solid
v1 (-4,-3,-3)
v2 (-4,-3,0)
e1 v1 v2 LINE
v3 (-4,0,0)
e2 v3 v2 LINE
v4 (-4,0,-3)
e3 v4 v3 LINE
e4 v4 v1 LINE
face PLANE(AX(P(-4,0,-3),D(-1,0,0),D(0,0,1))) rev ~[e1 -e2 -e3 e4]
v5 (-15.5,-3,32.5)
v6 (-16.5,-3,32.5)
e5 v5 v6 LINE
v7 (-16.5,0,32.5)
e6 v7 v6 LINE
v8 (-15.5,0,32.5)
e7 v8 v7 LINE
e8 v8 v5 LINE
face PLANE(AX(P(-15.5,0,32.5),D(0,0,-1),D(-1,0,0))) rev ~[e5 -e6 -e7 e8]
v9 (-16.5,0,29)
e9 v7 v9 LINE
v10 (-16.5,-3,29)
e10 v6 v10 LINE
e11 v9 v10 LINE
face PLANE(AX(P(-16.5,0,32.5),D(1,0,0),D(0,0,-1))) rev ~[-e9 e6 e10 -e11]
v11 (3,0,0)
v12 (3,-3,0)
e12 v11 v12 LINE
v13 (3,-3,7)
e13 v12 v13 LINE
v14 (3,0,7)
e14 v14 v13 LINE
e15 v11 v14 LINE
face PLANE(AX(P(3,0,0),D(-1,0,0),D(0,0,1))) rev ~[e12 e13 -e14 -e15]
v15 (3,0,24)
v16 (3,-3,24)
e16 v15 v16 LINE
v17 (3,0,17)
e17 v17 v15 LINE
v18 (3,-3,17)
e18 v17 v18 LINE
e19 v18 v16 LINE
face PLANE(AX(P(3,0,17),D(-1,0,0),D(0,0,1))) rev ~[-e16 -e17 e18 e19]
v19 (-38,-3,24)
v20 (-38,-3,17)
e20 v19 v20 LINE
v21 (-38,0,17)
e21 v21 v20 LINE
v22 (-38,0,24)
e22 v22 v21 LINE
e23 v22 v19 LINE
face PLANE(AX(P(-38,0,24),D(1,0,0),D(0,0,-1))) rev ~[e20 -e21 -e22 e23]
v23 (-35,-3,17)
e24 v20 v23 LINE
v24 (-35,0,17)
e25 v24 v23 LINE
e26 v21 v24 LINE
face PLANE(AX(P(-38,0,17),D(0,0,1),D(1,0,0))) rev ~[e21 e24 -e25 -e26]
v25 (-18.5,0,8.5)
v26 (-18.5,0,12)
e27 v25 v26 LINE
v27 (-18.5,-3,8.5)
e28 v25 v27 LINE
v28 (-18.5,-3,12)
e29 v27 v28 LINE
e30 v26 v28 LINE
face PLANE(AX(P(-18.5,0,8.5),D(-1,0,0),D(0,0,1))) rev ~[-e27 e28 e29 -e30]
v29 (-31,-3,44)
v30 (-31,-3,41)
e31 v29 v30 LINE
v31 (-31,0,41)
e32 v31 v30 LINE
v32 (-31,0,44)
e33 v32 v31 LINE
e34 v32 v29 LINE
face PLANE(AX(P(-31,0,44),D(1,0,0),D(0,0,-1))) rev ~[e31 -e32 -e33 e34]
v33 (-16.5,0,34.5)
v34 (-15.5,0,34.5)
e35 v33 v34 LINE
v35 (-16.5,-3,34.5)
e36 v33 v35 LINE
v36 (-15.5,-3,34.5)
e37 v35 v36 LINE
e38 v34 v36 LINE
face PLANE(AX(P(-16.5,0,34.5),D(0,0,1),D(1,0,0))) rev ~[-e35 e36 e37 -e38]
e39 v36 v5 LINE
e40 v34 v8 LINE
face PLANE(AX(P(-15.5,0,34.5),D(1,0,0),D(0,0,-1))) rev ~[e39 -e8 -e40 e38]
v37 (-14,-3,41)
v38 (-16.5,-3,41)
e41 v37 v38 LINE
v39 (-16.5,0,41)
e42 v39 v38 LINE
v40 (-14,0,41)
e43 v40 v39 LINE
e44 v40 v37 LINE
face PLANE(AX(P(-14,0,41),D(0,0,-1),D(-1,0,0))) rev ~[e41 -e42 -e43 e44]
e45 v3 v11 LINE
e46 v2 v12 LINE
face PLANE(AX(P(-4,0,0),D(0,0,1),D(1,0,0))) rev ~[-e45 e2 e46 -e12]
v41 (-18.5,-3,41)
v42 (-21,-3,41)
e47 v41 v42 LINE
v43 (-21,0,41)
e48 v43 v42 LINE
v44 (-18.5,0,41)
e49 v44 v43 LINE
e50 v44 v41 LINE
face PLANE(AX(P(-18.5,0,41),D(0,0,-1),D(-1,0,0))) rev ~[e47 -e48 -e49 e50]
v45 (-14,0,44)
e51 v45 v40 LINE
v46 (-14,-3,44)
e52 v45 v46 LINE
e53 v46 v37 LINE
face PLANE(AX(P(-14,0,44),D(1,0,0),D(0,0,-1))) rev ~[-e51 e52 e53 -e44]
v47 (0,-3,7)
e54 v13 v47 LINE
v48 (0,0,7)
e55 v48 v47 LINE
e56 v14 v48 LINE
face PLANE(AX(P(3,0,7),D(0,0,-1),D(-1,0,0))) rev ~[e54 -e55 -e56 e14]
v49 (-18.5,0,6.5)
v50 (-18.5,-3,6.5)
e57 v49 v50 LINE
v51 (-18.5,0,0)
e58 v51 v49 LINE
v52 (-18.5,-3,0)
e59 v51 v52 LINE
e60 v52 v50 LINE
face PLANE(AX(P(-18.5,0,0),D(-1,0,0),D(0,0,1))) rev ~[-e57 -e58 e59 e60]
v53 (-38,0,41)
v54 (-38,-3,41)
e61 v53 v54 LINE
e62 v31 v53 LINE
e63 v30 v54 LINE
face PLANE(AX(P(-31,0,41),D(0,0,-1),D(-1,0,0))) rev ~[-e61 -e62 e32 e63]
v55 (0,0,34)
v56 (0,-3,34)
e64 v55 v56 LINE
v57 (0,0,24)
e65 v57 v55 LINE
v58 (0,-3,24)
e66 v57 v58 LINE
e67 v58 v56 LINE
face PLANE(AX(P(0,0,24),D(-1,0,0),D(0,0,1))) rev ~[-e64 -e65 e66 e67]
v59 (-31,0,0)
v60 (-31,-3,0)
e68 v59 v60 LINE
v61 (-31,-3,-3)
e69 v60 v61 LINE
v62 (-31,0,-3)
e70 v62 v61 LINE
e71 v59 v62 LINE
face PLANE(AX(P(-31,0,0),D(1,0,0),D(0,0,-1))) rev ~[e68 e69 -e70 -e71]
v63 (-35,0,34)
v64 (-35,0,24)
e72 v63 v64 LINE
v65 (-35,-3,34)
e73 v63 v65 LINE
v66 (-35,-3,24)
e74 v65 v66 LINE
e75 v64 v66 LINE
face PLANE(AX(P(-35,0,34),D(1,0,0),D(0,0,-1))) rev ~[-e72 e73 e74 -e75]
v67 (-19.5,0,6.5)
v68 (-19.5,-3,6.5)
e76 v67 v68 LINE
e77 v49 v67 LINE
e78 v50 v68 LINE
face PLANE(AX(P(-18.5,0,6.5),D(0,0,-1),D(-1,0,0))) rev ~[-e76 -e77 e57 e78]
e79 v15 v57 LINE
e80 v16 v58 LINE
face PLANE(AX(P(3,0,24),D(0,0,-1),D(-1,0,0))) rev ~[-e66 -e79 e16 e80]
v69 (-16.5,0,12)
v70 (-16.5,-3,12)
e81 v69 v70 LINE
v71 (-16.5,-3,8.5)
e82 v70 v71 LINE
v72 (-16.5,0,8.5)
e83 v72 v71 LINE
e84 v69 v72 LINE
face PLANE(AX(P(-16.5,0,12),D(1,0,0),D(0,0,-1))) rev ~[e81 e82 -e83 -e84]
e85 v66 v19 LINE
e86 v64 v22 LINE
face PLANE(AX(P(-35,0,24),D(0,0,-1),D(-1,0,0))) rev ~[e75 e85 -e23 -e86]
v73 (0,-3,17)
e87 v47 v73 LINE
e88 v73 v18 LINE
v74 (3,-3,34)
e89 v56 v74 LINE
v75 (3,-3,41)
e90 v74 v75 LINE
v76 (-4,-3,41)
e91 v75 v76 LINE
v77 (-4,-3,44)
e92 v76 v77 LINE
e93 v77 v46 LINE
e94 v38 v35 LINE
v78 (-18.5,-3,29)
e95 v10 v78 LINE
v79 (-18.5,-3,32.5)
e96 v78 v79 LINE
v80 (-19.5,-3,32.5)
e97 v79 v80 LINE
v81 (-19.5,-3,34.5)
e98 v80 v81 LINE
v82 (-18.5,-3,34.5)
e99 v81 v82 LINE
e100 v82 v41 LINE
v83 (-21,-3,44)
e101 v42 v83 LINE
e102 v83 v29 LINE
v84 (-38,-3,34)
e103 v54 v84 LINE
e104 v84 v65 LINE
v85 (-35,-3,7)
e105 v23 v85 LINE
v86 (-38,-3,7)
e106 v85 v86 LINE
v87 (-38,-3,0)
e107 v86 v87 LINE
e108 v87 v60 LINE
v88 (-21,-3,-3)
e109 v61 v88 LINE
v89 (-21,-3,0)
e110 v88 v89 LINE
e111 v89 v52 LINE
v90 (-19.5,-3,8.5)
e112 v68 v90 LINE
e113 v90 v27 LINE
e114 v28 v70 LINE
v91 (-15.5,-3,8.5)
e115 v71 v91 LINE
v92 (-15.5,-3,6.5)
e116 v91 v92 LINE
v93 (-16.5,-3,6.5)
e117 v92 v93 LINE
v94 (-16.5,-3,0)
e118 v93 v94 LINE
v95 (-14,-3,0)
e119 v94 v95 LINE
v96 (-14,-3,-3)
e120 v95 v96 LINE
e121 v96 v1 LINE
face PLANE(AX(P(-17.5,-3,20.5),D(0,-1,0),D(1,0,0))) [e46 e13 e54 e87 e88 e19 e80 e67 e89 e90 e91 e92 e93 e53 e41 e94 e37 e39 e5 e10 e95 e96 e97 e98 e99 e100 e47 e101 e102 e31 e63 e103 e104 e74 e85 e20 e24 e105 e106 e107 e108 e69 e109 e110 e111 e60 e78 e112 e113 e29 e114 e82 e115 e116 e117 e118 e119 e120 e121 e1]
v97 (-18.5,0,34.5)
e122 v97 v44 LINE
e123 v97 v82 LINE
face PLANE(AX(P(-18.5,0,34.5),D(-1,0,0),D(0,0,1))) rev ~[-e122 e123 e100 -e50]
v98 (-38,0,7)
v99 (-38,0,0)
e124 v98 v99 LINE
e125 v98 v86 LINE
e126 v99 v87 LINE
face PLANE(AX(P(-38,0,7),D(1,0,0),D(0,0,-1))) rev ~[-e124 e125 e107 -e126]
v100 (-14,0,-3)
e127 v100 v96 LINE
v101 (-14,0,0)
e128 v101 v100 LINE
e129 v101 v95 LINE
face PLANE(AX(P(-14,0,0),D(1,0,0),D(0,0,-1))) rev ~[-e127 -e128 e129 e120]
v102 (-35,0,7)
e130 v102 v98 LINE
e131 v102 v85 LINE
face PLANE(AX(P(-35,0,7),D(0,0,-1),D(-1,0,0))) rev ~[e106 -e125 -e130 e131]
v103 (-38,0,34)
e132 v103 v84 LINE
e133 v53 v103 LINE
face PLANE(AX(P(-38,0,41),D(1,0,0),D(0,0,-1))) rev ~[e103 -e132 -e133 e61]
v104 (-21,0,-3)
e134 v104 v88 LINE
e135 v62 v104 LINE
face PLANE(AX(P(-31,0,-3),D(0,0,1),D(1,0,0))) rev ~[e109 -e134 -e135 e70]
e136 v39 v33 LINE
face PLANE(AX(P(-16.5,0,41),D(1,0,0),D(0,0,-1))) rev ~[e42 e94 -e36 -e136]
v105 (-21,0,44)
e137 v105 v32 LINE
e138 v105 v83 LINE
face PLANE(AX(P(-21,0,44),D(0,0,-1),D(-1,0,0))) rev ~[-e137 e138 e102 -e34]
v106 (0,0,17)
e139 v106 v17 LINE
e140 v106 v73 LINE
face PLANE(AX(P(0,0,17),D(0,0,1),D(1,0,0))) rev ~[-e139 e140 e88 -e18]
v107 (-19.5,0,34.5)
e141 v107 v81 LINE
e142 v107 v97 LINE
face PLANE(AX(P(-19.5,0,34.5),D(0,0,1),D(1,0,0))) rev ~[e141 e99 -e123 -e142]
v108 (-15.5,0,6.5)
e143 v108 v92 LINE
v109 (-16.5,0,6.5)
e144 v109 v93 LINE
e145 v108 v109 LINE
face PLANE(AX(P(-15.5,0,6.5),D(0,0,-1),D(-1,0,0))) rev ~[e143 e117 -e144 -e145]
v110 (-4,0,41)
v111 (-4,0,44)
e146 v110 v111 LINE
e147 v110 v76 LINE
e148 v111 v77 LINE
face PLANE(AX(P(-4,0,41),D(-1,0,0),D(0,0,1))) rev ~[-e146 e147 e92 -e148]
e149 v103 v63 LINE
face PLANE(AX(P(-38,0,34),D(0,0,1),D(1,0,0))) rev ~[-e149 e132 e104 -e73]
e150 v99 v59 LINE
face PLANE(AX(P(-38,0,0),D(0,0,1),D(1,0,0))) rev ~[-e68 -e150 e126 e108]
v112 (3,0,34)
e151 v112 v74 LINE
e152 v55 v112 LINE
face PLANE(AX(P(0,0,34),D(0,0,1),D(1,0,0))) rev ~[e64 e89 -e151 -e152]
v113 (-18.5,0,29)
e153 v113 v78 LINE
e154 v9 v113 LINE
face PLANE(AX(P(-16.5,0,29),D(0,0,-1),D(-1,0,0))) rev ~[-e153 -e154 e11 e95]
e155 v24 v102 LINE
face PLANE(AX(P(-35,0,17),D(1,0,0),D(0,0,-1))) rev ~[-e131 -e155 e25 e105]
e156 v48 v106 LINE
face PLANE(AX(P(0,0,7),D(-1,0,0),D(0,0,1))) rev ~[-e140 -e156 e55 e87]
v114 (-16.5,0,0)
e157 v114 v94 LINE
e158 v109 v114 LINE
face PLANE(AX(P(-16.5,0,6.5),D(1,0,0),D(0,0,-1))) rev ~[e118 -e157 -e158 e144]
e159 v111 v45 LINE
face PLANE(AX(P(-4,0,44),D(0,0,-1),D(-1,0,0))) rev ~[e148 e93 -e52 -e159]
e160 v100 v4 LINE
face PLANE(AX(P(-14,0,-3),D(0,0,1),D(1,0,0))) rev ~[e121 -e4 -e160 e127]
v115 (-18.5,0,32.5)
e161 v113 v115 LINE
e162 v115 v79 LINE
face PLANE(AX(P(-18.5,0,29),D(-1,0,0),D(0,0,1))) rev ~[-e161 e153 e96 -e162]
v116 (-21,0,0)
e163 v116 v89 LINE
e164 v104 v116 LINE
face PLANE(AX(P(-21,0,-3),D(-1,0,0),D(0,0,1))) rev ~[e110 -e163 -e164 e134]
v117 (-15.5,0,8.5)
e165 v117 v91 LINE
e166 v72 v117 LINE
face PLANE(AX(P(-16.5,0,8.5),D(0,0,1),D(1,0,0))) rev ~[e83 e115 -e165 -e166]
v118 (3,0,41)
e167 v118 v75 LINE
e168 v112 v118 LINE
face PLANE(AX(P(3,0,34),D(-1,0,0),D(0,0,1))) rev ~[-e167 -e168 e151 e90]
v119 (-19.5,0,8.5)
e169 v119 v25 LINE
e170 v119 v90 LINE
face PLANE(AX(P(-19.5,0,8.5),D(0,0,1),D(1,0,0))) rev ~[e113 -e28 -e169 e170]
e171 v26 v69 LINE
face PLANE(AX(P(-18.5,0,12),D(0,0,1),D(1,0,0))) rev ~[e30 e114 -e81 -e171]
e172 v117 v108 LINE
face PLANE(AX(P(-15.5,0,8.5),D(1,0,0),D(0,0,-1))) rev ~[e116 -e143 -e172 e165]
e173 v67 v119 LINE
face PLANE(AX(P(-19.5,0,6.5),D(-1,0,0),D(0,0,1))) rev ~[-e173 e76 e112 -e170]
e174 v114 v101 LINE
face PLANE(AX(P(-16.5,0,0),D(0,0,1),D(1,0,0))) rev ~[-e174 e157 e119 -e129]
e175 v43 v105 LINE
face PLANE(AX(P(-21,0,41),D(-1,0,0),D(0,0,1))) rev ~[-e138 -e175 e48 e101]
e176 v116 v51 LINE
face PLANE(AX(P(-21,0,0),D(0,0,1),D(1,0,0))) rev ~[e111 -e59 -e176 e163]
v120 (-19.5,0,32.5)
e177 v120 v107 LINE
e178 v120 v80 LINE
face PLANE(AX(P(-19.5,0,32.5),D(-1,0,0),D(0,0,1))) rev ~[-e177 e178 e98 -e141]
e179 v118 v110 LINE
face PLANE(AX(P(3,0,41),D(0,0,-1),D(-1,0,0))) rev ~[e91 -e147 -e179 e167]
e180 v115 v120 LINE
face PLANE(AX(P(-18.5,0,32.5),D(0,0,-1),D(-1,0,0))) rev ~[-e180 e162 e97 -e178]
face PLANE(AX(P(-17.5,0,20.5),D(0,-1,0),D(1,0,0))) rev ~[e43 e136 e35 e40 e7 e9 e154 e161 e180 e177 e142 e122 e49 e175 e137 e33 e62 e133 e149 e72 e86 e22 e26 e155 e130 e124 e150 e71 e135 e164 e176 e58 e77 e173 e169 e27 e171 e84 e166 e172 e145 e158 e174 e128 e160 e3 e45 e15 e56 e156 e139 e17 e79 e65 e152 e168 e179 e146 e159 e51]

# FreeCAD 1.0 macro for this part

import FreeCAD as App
import Part
import Sketcher
from FreeCAD import Vector


def add_polygon(sketch, points):
    """Adds a closed chain of lines whose ends are joined by coincident constraints."""
    first, n = sketch.GeometryCount, len(points)
    for a, b in zip(points, points[1:] + points[:1]):
        sketch.addGeometry(Part.LineSegment(App.Vector(*a, 0), App.Vector(*b, 0)), False)
    for i in range(n):
        sketch.addConstraint(Sketcher.Constraint("Coincident", first + i, 2, first + (i + 1) % n, 1))

doc = App.newDocument("Part")
body = doc.addObject("PartDesign::Body", "Body")

# Sketch on XZ plane
sketch1 = body.newObject("Sketcher::SketchObject", "Sketch")
sketch1.AttachmentSupport = (doc.getObject("XZ_Plane"), [""])
sketch1.MapMode = "FlatFace"
add_polygon(sketch1, [(3, 0), (3, 7), (0, 7), (0, 17), (3, 17), (3, 24), (0, 24), (0, 34), (3, 34), (3, 41), (-4, 41), (-4, 44), (-14, 44), (-14, 41), (-16.5, 41), (-16.5, 34.5), (-15.5, 34.5), (-15.5, 32.5), (-16.5, 32.5), (-16.5, 29), (-18.5, 29), (-18.5, 32.5), (-19.5, 32.5), (-19.5, 34.5), (-18.5, 34.5), (-18.5, 41), (-21, 41), (-21, 44), (-31, 44), (-31, 41), (-38, 41), (-38, 34), (-35, 34), (-35, 24), (-38, 24), (-38, 17), (-35, 17), (-35, 7), (-38, 7), (-38, 0), (-31, 0), (-31, -3), (-21, -3), (-21, 0), (-18.5, 0), (-18.5, 6.5), (-19.5, 6.5), (-19.5, 8.5), (-18.5, 8.5), (-18.5, 12), (-16.5, 12), (-16.5, 8.5), (-15.5, 8.5), (-15.5, 6.5), (-16.5, 6.5), (-16.5, 0), (-14, 0), (-14, -3), (-4, -3), (-4, 0)])  # lines 0-59
sketch1.addConstraint([
    Sketcher.Constraint("Vertical", 0),
    Sketcher.Constraint("Horizontal", 1),
    Sketcher.Constraint("Vertical", 2),
    Sketcher.Constraint("Horizontal", 3),
    Sketcher.Constraint("Vertical", 4),
    Sketcher.Constraint("Horizontal", 5),
    Sketcher.Constraint("Vertical", 6),
    Sketcher.Constraint("Horizontal", 7),
    Sketcher.Constraint("Vertical", 8),
    Sketcher.Constraint("Horizontal", 9),
    Sketcher.Constraint("Vertical", 10),
    Sketcher.Constraint("Horizontal", 11),
    Sketcher.Constraint("Vertical", 12),
    Sketcher.Constraint("Horizontal", 13),
    Sketcher.Constraint("Vertical", 14),
    Sketcher.Constraint("Horizontal", 15),
    Sketcher.Constraint("Vertical", 16),
    Sketcher.Constraint("Horizontal", 17),
    Sketcher.Constraint("Vertical", 18),
    Sketcher.Constraint("Horizontal", 19),
    Sketcher.Constraint("Vertical", 20),
    Sketcher.Constraint("Horizontal", 21),
    Sketcher.Constraint("Vertical", 22),
    Sketcher.Constraint("Horizontal", 23),
    Sketcher.Constraint("Vertical", 24),
    Sketcher.Constraint("Horizontal", 25),
    Sketcher.Constraint("Vertical", 26),
    Sketcher.Constraint("Horizontal", 27),
    Sketcher.Constraint("Vertical", 28),
    Sketcher.Constraint("Horizontal", 29),
    Sketcher.Constraint("Vertical", 30),
    Sketcher.Constraint("Horizontal", 31),
    Sketcher.Constraint("Vertical", 32),
    Sketcher.Constraint("Horizontal", 33),
    Sketcher.Constraint("Vertical", 34),
    Sketcher.Constraint("Horizontal", 35),
    Sketcher.Constraint("Vertical", 36),
    Sketcher.Constraint("Horizontal", 37),
    Sketcher.Constraint("Vertical", 38),
    Sketcher.Constraint("Horizontal", 39),
    Sketcher.Constraint("Vertical", 40),
    Sketcher.Constraint("Horizontal", 41),
    Sketcher.Constraint("Vertical", 42),
    Sketcher.Constraint("Horizontal", 43),
    Sketcher.Constraint("Vertical", 44),
    Sketcher.Constraint("Horizontal", 45),
    Sketcher.Constraint("Vertical", 46),
    Sketcher.Constraint("Horizontal", 47),
    Sketcher.Constraint("Vertical", 48),
    Sketcher.Constraint("Horizontal", 49),
    Sketcher.Constraint("Vertical", 50),
    Sketcher.Constraint("Horizontal", 51),
    Sketcher.Constraint("Vertical", 52),
    Sketcher.Constraint("Horizontal", 53),
    Sketcher.Constraint("Vertical", 54),
    Sketcher.Constraint("Horizontal", 55),
    Sketcher.Constraint("Vertical", 56),
    Sketcher.Constraint("Horizontal", 57),
    Sketcher.Constraint("Vertical", 58),
    Sketcher.Constraint("Horizontal", 59),
    Sketcher.Constraint("PointOnObject", 1, 2, -2),
    Sketcher.Constraint("PointOnObject", 5, 2, -2),
    Sketcher.Constraint("PointOnObject", 38, 2, -1),
    Sketcher.Constraint("PointOnObject", 42, 2, -1),
    Sketcher.Constraint("PointOnObject", 54, 2, -1),
    Sketcher.Constraint("PointOnObject", 58, 2, -1),
    Sketcher.Constraint("Horizontal", 9, 2, 12, 2),
    Sketcher.Constraint("Horizontal", 17, 2, 20, 2),
    Sketcher.Constraint("Horizontal", 15, 2, 22, 2),
    Sketcher.Constraint("Horizontal", 13, 2, 24, 2),
    Sketcher.Constraint("Horizontal", 11, 2, 26, 2),
    Sketcher.Constraint("Horizontal", 25, 2, 28, 2),
    Sketcher.Constraint("Horizontal", 7, 2, 30, 2),
    Sketcher.Constraint("Horizontal", 5, 2, 32, 2),
    Sketcher.Constraint("Horizontal", 3, 2, 34, 2),
    Sketcher.Constraint("Horizontal", 1, 2, 36, 2),
    Sketcher.Constraint("Horizontal", 47, 2, 50, 2),
    Sketcher.Constraint("Horizontal", 45, 2, 52, 2),
    Sketcher.Constraint("Horizontal", 41, 2, 56, 2),
    Sketcher.Constraint("Vertical", 0, 2, 3, 2),
    Sketcher.Constraint("Vertical", 4, 2, 7, 2),
    Sketcher.Constraint("Vertical", 14, 2, 17, 2),
    Sketcher.Constraint("Vertical", 20, 2, 23, 2),
    Sketcher.Constraint("Vertical", 30, 2, 33, 2),
    Sketcher.Constraint("Vertical", 32, 2, 35, 2),
    Sketcher.Constraint("Vertical", 34, 2, 37, 2),
    Sketcher.Constraint("Vertical", 28, 2, 39, 2),
    Sketcher.Constraint("Vertical", 26, 2, 41, 2),
    Sketcher.Constraint("Vertical", 24, 2, 43, 2),
    Sketcher.Constraint("Vertical", 22, 2, 45, 2),
    Sketcher.Constraint("Vertical", 44, 2, 47, 2),
    Sketcher.Constraint("Vertical", 18, 2, 49, 2),
    Sketcher.Constraint("Vertical", 16, 2, 51, 2),
    Sketcher.Constraint("Vertical", 50, 2, 53, 2),
    Sketcher.Constraint("Vertical", 12, 2, 55, 2),
    Sketcher.Constraint("Vertical", 10, 2, 57, 2),
    Sketcher.Constraint("Equal", 17, 21),
    Sketcher.Constraint("Equal", 13, 25),
    Sketcher.Constraint("Equal", 11, 27),
    Sketcher.Constraint("Equal", 9, 29),
    Sketcher.Constraint("Equal", 7, 31),
    Sketcher.Constraint("Equal", 59, 0),
    Sketcher.Constraint("Equal", 57, 2),
    Sketcher.Constraint("Equal", 0, 4),
    Sketcher.Constraint("Equal", 2, 6),
    Sketcher.Constraint("Equal", 4, 8),
    Sketcher.Constraint("Equal", 37, 10),
    Sketcher.Constraint("Equal", 49, 16),
    Sketcher.Constraint("Equal", 28, 40),
    Sketcher.Constraint("Equal", 24, 44),
    Sketcher.Constraint("Equal", 22, 46),
    Sketcher.Constraint("Equal", 20, 48),
    Sketcher.Constraint("DistanceX", 1, 2, 1, 1, 3.0),
    Sketcher.Constraint("DistanceX", 9, 2, 9, 1, 7.0),
    Sketcher.Constraint("DistanceX", 11, 2, 11, 1, 10.0),
    Sketcher.Constraint("DistanceX", 15, 1, 15, 2, 1.0),
    Sketcher.Constraint("DistanceX", 19, 2, 19, 1, 2.0),
    Sketcher.Constraint("DistanceX", 13, 2, 13, 1, 2.5),
    Sketcher.Constraint("DistanceY", 14, 2, 14, 1, 6.5),
    Sketcher.Constraint("DistanceY", 18, 2, 18, 1, 3.5),
])
pad1 = body.newObject("PartDesign::Pad", "Pad")
pad1.Profile = sketch1
pad1.Length = 3

doc.recompute()
